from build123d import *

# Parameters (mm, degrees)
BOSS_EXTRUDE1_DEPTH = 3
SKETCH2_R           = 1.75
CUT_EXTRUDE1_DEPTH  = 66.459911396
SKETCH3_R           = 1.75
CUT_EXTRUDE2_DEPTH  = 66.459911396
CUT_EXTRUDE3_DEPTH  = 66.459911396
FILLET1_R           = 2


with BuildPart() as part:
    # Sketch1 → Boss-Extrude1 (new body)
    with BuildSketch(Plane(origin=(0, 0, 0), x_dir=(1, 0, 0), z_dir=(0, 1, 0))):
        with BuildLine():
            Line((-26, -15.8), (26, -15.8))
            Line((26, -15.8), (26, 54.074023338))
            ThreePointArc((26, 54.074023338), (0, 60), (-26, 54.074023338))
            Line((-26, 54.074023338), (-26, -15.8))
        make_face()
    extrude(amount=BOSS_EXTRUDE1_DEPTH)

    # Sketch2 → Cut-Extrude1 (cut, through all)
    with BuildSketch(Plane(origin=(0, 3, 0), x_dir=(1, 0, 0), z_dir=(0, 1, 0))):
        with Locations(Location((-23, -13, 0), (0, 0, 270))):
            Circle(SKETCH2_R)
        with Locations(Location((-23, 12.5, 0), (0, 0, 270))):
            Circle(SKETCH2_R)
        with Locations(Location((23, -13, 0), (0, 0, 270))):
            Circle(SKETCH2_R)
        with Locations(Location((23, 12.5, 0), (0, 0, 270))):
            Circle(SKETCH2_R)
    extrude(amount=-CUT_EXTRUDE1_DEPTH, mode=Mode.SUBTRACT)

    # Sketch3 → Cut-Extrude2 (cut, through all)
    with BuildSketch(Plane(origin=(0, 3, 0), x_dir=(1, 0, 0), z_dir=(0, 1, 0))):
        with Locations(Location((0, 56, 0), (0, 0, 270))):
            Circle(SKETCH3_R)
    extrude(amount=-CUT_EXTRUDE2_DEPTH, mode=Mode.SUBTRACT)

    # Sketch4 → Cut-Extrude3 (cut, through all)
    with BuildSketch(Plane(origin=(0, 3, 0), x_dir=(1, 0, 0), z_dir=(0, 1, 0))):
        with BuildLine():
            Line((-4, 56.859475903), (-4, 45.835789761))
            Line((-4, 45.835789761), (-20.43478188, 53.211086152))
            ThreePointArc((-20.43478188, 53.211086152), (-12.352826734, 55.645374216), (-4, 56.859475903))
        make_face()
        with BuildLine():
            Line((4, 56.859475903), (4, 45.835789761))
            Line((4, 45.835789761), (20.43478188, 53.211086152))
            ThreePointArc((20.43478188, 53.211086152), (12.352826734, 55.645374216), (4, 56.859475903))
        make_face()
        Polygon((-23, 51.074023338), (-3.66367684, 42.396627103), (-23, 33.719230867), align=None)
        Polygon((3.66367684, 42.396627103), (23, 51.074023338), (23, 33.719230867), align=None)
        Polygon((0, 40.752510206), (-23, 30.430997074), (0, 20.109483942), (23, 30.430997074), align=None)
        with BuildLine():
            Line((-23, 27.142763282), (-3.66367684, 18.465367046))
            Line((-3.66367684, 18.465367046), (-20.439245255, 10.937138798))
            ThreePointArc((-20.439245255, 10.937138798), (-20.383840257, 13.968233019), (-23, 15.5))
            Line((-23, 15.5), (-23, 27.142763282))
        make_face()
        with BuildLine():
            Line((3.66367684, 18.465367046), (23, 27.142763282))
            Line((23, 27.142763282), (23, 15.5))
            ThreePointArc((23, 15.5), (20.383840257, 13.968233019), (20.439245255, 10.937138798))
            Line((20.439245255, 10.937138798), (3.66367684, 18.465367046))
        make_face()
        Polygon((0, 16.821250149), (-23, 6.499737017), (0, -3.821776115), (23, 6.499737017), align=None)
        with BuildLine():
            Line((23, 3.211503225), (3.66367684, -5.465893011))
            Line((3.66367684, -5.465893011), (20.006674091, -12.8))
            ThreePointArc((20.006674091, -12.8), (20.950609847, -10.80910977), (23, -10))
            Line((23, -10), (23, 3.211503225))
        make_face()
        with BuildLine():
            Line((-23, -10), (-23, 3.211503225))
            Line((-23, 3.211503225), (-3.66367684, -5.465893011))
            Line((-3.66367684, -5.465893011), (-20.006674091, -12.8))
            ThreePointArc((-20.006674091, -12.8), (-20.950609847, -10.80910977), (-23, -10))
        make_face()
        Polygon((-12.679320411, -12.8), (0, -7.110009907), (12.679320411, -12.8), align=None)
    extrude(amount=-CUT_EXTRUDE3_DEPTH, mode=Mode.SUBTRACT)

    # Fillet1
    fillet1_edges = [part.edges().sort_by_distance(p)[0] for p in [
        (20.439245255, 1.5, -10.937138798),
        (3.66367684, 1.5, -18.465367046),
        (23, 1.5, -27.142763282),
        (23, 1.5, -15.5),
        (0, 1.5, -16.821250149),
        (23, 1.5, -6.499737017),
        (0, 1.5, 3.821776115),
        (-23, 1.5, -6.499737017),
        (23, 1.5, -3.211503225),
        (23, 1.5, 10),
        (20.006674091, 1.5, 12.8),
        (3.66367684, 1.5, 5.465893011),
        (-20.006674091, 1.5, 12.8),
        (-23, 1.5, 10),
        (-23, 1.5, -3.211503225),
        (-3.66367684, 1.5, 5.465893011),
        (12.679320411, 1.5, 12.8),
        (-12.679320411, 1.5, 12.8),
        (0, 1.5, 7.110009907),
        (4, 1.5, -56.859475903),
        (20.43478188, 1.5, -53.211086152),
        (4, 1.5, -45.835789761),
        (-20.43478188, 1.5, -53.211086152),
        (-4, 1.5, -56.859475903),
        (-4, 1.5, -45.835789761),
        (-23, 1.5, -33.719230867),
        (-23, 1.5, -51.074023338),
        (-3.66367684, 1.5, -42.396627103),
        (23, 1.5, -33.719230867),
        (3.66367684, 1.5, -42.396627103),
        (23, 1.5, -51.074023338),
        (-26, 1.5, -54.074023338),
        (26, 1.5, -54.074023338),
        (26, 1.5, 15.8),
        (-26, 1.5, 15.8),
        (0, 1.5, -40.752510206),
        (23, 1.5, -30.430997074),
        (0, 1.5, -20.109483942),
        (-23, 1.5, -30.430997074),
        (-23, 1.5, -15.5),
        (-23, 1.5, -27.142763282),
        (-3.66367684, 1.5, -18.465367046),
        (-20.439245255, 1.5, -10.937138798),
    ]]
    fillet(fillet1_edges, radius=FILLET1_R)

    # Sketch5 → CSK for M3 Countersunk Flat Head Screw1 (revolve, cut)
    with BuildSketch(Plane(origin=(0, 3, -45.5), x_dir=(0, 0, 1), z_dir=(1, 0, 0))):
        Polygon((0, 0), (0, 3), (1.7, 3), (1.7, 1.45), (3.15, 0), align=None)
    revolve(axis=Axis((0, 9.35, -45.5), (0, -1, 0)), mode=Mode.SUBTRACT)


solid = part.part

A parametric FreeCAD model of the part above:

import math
import FreeCAD as App
import Part
import Sketcher
from FreeCAD import Vector
Q = App.Units.Quantity


def edges_at(feature, points):
    """Names of the edges that pass closest to the given points."""
    edges = feature.Shape.Edges
    near = lambda p: min(range(len(edges)), key=lambda i: edges[i].distToShape(Part.Vertex(*p))[0])
    return sorted({f"Edge{near(p) + 1}" for p in points})

doc = App.newDocument("Part")
params = doc.addObject("Spreadsheet::Sheet", "Params")
for row, (alias, value) in enumerate([
    ("sketch1_radius", "60 mm"),
    ("sketch1_width", "52 mm"),
    ("pad1_length", "3 mm"),
    ("sketch2_diameter", "3.5 mm"),
    ("sketch3_diameter", "3.5 mm"),
    ("sketch4_radius", "57 mm"),
    ("sketch4_radius2", "3 mm"),
    ("fillet_radius", "2 mm"),
    ("sketch5_width", "3 mm"),
    ("sketch5_height", "1.7 mm"),
    ("sketch5_width2", "1.55 mm"),
    ("groove_angle", "360 deg"),
], start=1):
    params.set(f"A{row}", alias)
    params.set(f"B{row}", "=" + value)
    params.setAlias(f"B{row}", alias)

body = doc.addObject("PartDesign::Body", "Body")

# Sketch on XZ plane
sketch1 = body.newObject("Sketcher::SketchObject", "Sketch")
sketch1.AttachmentSupport = (doc.getObject("XZ_Plane"), [""])
sketch1.MapMode = "FlatFace"
sketch1.addGeometry([
    Part.LineSegment(Vector(-26, 16, 0), Vector(26, 16, 0)),
    Part.LineSegment(Vector(26, 16, 0), Vector(26, -54, 0)),
    Part.ArcOfCircle(Part.Circle(Vector(0, 0, 0), Vector(0, 0, 1), 60), math.radians(-116), math.radians(-64)),
    Part.LineSegment(Vector(-26, -54, 0), Vector(-26, 16, 0)),
], False)
sketch1.addConstraint([
    Sketcher.Constraint("Coincident", 0, 2, 1, 1),
    Sketcher.Constraint("Coincident", 1, 2, 2, 2),
    Sketcher.Constraint("Coincident", 2, 1, 3, 1),
    Sketcher.Constraint("Coincident", 3, 2, 0, 1),
    Sketcher.Constraint("Horizontal", 0),
    Sketcher.Constraint("Vertical", 1),
    Sketcher.Constraint("Vertical", 3),
    Sketcher.Constraint("Coincident", 2, 3, -1, 1),
    Sketcher.Constraint("Horizontal", 1, 2, 2, 1),
    Sketcher.Constraint("Radius", 2, 60.0),
    Sketcher.Constraint("DistanceX", 0, 1, 0, 2, 52.0),
    Sketcher.Constraint("DistanceY", -1, 1, 0, 2, 15.8),
])
sketch1.setExpression("Constraints[9]", "Params.sketch1_radius")
sketch1.setExpression("Constraints[10]", "Params.sketch1_width")
pad1 = body.newObject("PartDesign::Pad", "Pad")
pad1.Profile = sketch1
pad1.setExpression("Length", "Params.pad1_length")
pad1.Reversed = True

# Sketch on XZ plane
sketch2 = body.newObject("Sketcher::SketchObject", "Sketch001")
sketch2.AttachmentSupport = (doc.getObject("XZ_Plane"), [""])
sketch2.MapMode = "FlatFace"
sketch2.AttachmentOffset = App.Placement(Vector(0, 0, -3), App.Rotation())
sketch2.addGeometry([
    Part.Circle(Vector(-23, 13, 0), Vector(0, 0, 1), 1.8),
    Part.Circle(Vector(-23, -12.5, 0), Vector(0, 0, 1), 1.8),
    Part.Circle(Vector(23, 13, 0), Vector(0, 0, 1), 1.8),
    Part.Circle(Vector(23, -12.5, 0), Vector(0, 0, 1), 1.8),
], False)
sketch2.addConstraint([
    Sketcher.Constraint("Equal", 0, 1),
    Sketcher.Constraint("Equal", 1, 2),
    Sketcher.Constraint("Equal", 2, 3),
    Sketcher.Constraint("Symmetric", 0, 3, 2, 3, -2),
    Sketcher.Constraint("Symmetric", 1, 3, 3, 3, -2),
    Sketcher.Constraint("Vertical", 0, 3, 1, 3),
    Sketcher.Constraint("Diameter", 0, 3.5),
    Sketcher.Constraint("DistanceX", 0, 3, -1, 1, 23.0),
    Sketcher.Constraint("DistanceY", -1, 1, 0, 3, 13.0),
    Sketcher.Constraint("DistanceY", 1, 3, -1, 1, 12.5),
])
sketch2.setExpression("Constraints[6]", "Params.sketch2_diameter")
pocket1 = body.newObject("PartDesign::Pocket", "Pocket")
pocket1.Profile = sketch2
pocket1.Type = "ThroughAll"
pocket1.Reversed = True

# Sketch on XZ plane
sketch3 = body.newObject("Sketcher::SketchObject", "Sketch002")
sketch3.AttachmentSupport = (doc.getObject("XZ_Plane"), [""])
sketch3.MapMode = "FlatFace"
sketch3.AttachmentOffset = App.Placement(Vector(0, 0, -3), App.Rotation())
sketch3.addGeometry(Part.Circle(Vector(0, -56, 0), Vector(0, 0, 1), 1.8), False)
sketch3.addConstraint([
    Sketcher.Constraint("PointOnObject", 0, 3, -2),
    Sketcher.Constraint("Diameter", 0, 3.5),
    Sketcher.Constraint("DistanceY", 0, 3, -1, 1, 56.0),
])
sketch3.setExpression("Constraints[1]", "Params.sketch3_diameter")
pocket2 = body.newObject("PartDesign::Pocket", "Pocket001")
pocket2.Profile = sketch3
pocket2.Type = "ThroughAll"
pocket2.Reversed = True

# Sketch on XZ plane
sketch4 = body.newObject("Sketcher::SketchObject", "Sketch003")
sketch4.AttachmentSupport = (doc.getObject("XZ_Plane"), [""])
sketch4.MapMode = "FlatFace"
sketch4.AttachmentOffset = App.Placement(Vector(0, 0, -3), App.Rotation())
sketch4.addGeometry([
    Part.LineSegment(Vector(-4, -45.8, 0), Vector(-4, -56.9, 0)),  # 0
    Part.ArcOfCircle(Part.Circle(Vector(0, 0, 0), Vector(0, 0, 1), 57), math.radians(-111.01), math.radians(-94.02)),  # 1
    Part.LineSegment(Vector(-20.4, -53.2, 0), Vector(-4, -45.8, 0)),  # 2
    Part.LineSegment(Vector(4, -56.9, 0), Vector(4, -45.8, 0)),  # 3
    Part.LineSegment(Vector(4, -45.8, 0), Vector(20.4, -53.2, 0)),  # 4
    Part.ArcOfCircle(Part.Circle(Vector(0, 0, 0), Vector(0, 0, 1), 57), math.radians(-85.98), math.radians(-68.99)),  # 5
    Part.LineSegment(Vector(-3.7, -42.4, 0), Vector(-23, -51.1, 0)),  # 6
    Part.LineSegment(Vector(-23, -51.1, 0), Vector(-23, -33.7, 0)),  # 7
    Part.LineSegment(Vector(-23, -33.7, 0), Vector(-3.7, -42.4, 0)),  # 8
    Part.LineSegment(Vector(23, -51.1, 0), Vector(3.7, -42.4, 0)),  # 9
    Part.LineSegment(Vector(3.7, -42.4, 0), Vector(23, -33.7, 0)),  # 10
    Part.LineSegment(Vector(23, -33.7, 0), Vector(23, -51.1, 0)),  # 11
    Part.LineSegment(Vector(0, -40.8, 0), Vector(-23, -30.4, 0)),  # 12
    Part.LineSegment(Vector(-23, -30.4, 0), Vector(0, -20.1, 0)),  # 13
    Part.LineSegment(Vector(0, -20.1, 0), Vector(23, -30.4, 0)),  # 14
    Part.LineSegment(Vector(23, -30.4, 0), Vector(0, -40.8, 0)),  # 15
    Part.LineSegment(Vector(-3.7, -18.5, 0), Vector(-23, -27.1, 0)),  # 16
    Part.LineSegment(Vector(-23, -27.1, 0), Vector(-23, -15.5, 0)),  # 17
    Part.ArcOfCircle(Part.Circle(Vector(-23, -12.5, 0), Vector(0, 0, 1), 3), math.radians(-90), math.radians(31)),  # 18
    Part.LineSegment(Vector(-20.4, -10.9, 0), Vector(-3.7, -18.5, 0)),  # 19
    Part.LineSegment(Vector(23, -27.1, 0), Vector(3.7, -18.5, 0)),  # 20
    Part.LineSegment(Vector(3.7, -18.5, 0), Vector(20.4, -10.9, 0)),  # 21
    Part.ArcOfCircle(Part.Circle(Vector(23, -12.5, 0), Vector(0, 0, 1), 3), math.radians(149), math.radians(270)),  # 22
    Part.LineSegment(Vector(23, -15.5, 0), Vector(23, -27.1, 0)),  # 23
    Part.LineSegment(Vector(0, -16.8, 0), Vector(-23, -6.5, 0)),  # 24
    Part.LineSegment(Vector(-23, -6.5, 0), Vector(0, 3.8, 0)),  # 25
    Part.LineSegment(Vector(0, 3.8, 0), Vector(23, -6.5, 0)),  # 26
    Part.LineSegment(Vector(23, -6.5, 0), Vector(0, -16.8, 0)),  # 27
    Part.LineSegment(Vector(23, -3.2, 0), Vector(3.7, 5.5, 0)),  # 28
    Part.LineSegment(Vector(3.7, 5.5, 0), Vector(20, 12.8, 0)),  # 29
    Part.ArcOfCircle(Part.Circle(Vector(23, 13, 0), Vector(0, 0, 1), 3), math.radians(-176), math.radians(-90)),  # 30
    Part.LineSegment(Vector(23, 10, 0), Vector(23, -3.2, 0)),  # 31
    Part.LineSegment(Vector(-23, -3.2, 0), Vector(-23, 10, 0)),  # 32
    Part.ArcOfCircle(Part.Circle(Vector(-23, 13, 0), Vector(0, 0, 1), 3), math.radians(-90), math.radians(-4)),  # 33
    Part.LineSegment(Vector(-20, 12.8, 0), Vector(-3.7, 5.5, 0)),  # 34
    Part.LineSegment(Vector(-3.7, 5.5, 0), Vector(-23, -3.2, 0)),  # 35
    Part.LineSegment(Vector(0, 7.1, 0), Vector(-12.7, 12.8, 0)),  # 36
    Part.LineSegment(Vector(-12.7, 12.8, 0), Vector(12.7, 12.8, 0)),  # 37
    Part.LineSegment(Vector(12.7, 12.8, 0), Vector(0, 7.1, 0)),  # 38
], False)
sketch4.addConstraint([
    Sketcher.Constraint("Coincident", 0, 2, 1, 2),
    Sketcher.Constraint("Coincident", 1, 1, 2, 1),
    Sketcher.Constraint("Coincident", 2, 2, 0, 1),
    Sketcher.Constraint("Coincident", 3, 2, 4, 1),
    Sketcher.Constraint("Coincident", 4, 2, 5, 2),
    Sketcher.Constraint("Coincident", 5, 1, 3, 1),
    Sketcher.Constraint("Coincident", 6, 2, 7, 1),
    Sketcher.Constraint("Coincident", 7, 2, 8, 1),
    Sketcher.Constraint("Coincident", 8, 2, 6, 1),
    Sketcher.Constraint("Coincident", 9, 2, 10, 1),
    Sketcher.Constraint("Coincident", 10, 2, 11, 1),
    Sketcher.Constraint("Coincident", 11, 2, 9, 1),
    Sketcher.Constraint("Coincident", 12, 2, 13, 1),
    Sketcher.Constraint("Coincident", 13, 2, 14, 1),
    Sketcher.Constraint("Coincident", 14, 2, 15, 1),
    Sketcher.Constraint("Coincident", 15, 2, 12, 1),
    Sketcher.Constraint("Coincident", 16, 2, 17, 1),
    Sketcher.Constraint("Coincident", 17, 2, 18, 1),
    Sketcher.Constraint("Coincident", 18, 2, 19, 1),
    Sketcher.Constraint("Coincident", 19, 2, 16, 1),
    Sketcher.Constraint("Coincident", 20, 2, 21, 1),
    Sketcher.Constraint("Coincident", 21, 2, 22, 1),
    Sketcher.Constraint("Coincident", 22, 2, 23, 1),
    Sketcher.Constraint("Coincident", 23, 2, 20, 1),
    Sketcher.Constraint("Coincident", 24, 2, 25, 1),
    Sketcher.Constraint("Coincident", 25, 2, 26, 1),
    Sketcher.Constraint("Coincident", 26, 2, 27, 1),
    Sketcher.Constraint("Coincident", 27, 2, 24, 1),
    Sketcher.Constraint("Coincident", 28, 2, 29, 1),
    Sketcher.Constraint("Coincident", 29, 2, 30, 1),
    Sketcher.Constraint("Coincident", 30, 2, 31, 1),
    Sketcher.Constraint("Coincident", 31, 2, 28, 1),
    Sketcher.Constraint("Coincident", 32, 2, 33, 1),
    Sketcher.Constraint("Coincident", 33, 2, 34, 1),
    Sketcher.Constraint("Coincident", 34, 2, 35, 1),
    Sketcher.Constraint("Coincident", 35, 2, 32, 1),
    Sketcher.Constraint("Coincident", 36, 2, 37, 1),
    Sketcher.Constraint("Coincident", 37, 2, 38, 1),
    Sketcher.Constraint("Coincident", 38, 2, 36, 1),
    Sketcher.Constraint("Vertical", 0),
    Sketcher.Constraint("Vertical", 3),
    Sketcher.Constraint("Vertical", 7),
    Sketcher.Constraint("Vertical", 11),
    Sketcher.Constraint("Vertical", 17),
    Sketcher.Constraint("Vertical", 23),
    Sketcher.Constraint("Vertical", 31),
    Sketcher.Constraint("Vertical", 32),
    Sketcher.Constraint("Horizontal", 37),
    Sketcher.Constraint("Coincident", 1, 3, -1, 1),
    Sketcher.Constraint("Coincident", 5, 3, -1, 1),
    Sketcher.Constraint("Equal", 1, 5),
    Sketcher.Constraint("Equal", 18, 22),
    Sketcher.Constraint("Equal", 22, 30),
    Sketcher.Constraint("Equal", 30, 33),
    Sketcher.Constraint("Symmetric", 18, 3, 22, 3, -2),
    Sketcher.Constraint("Symmetric", 30, 3, 33, 3, -2),
    Sketcher.Constraint("Symmetric", 2, 2, 3, 2, -2),
    Sketcher.Constraint("Symmetric", 8, 2, 9, 2, -2),
    Sketcher.Constraint("Symmetric", 7, 2, 10, 2, -2),
    Sketcher.Constraint("Symmetric", 12, 2, 14, 2, -2),
    Sketcher.Constraint("Symmetric", 19, 2, 20, 2, -2),
    Sketcher.Constraint("Symmetric", 16, 2, 23, 2, -2),
    Sketcher.Constraint("Symmetric", 24, 2, 26, 2, -2),
    Sketcher.Constraint("Symmetric", 28, 2, 34, 2, -2),
    Sketcher.Constraint("Symmetric", 31, 2, 35, 2, -2),
    Sketcher.Constraint("PointOnObject", 13, 2, -2),
    Sketcher.Constraint("PointOnObject", 15, 2, -2),
    Sketcher.Constraint("PointOnObject", 25, 2, -2),
    Sketcher.Constraint("PointOnObject", 27, 2, -2),
    Sketcher.Constraint("PointOnObject", 38, 2, -2),
    Sketcher.Constraint("Parallel", 2, 6),
    Sketcher.Constraint("Parallel", 4, 8),
    Sketcher.Constraint("Parallel", 8, 9),
    Sketcher.Constraint("Parallel", 6, 10),
    Sketcher.Constraint("Parallel", 9, 12),
    Sketcher.Constraint("Parallel", 10, 13),
    Sketcher.Constraint("Parallel", 15, 16),
    Sketcher.Constraint("Parallel", 14, 19),
    Sketcher.Constraint("Parallel", 16, 21),
    Sketcher.Constraint("Parallel", 20, 24),
    Sketcher.Constraint("Parallel", 21, 25),
    Sketcher.Constraint("Parallel", 26, 28),
    Sketcher.Constraint("Parallel", 27, 29),
    Sketcher.Constraint("Parallel", 28, 34),
    Sketcher.Constraint("Parallel", 34, 36),
    Sketcher.Constraint("Parallel", 35, 38),
    Sketcher.Constraint("Horizontal", 33, 2, 36, 2),
    Sketcher.Constraint("Vertical", 22, 3, 30, 3),
    Sketcher.Constraint("Vertical", 33, 3, 6, 2),
    Sketcher.Constraint("Vertical", 7, 2, 12, 2),
    Sketcher.Constraint("Vertical", 12, 2, 16, 2),
    Sketcher.Constraint("Vertical", 8, 2, 19, 2),
    Sketcher.Constraint("Vertical", 17, 2, 24, 2),
    Sketcher.Constraint("Vertical", 20, 2, 28, 2),
    Sketcher.Constraint("Vertical", 26, 2, 30, 2),
    Sketcher.Constraint("Radius", 1, 57.0),
    Sketcher.Constraint("Radius", 18, 3.0),
    Sketcher.Constraint("DistanceX", 18, 3, -1, 1, 23.0),
    Sketcher.Constraint("DistanceY", -1, 1, 30, 3, 13.0),
    Sketcher.Constraint("DistanceX", 0, 2, -1, 1, 4.0),
    Sketcher.Constraint("DistanceY", 18, 3, -1, 1, 12.5),
    Sketcher.Constraint("DistanceY", -1, 1, 29, 2, 12.8),
    Sketcher.Constraint("Distance", 2, 18.013802),
    Sketcher.Constraint("Distance", 29, 17.913199),
    Sketcher.Constraint("DistanceX", 37, 1, 37, 2, 25.358641),
    Sketcher.Constraint("DistanceY", 18, 2, 24, 2, 4.437402),
    Sketcher.Constraint("Distance", 19, 18.38733),
    Sketcher.Constraint("DistanceY", 0, 2, 0, 1, 11.023686),
    Sketcher.Constraint("DistanceY", 7, 2, -1, 1, 33.719231),
    Sketcher.Constraint("DistanceY", 15, 2, -1, 1, 40.75251),
])
sketch4.setExpression("Constraints[95]", "Params.sketch4_radius")
sketch4.setExpression("Constraints[96]", "Params.sketch4_radius2")
pocket3 = body.newObject("PartDesign::Pocket", "Pocket002")
pocket3.Profile = sketch4
pocket3.Type = "ThroughAll"
pocket3.Reversed = True
doc.recompute()

fillet = body.newObject("PartDesign::Fillet", "Fillet")
fillet.Base = (pocket3, edges_at(pocket3, [
    (20.439, 1.5, -10.937),
    (3.664, 1.5, -18.465),
    (23, 1.5, -27.143),
    (23, 1.5, -15.5),
    (0, 1.5, -16.821),
    (23, 1.5, -6.5),
    (0, 1.5, 3.822),
    (-23, 1.5, -6.5),
    (23, 1.5, -3.212),
    (23, 1.5, 10),
    (20.007, 1.5, 12.8),
    (3.664, 1.5, 5.466),
    (-20.007, 1.5, 12.8),
    (-23, 1.5, 10),
    (-23, 1.5, -3.212),
    (-3.664, 1.5, 5.466),
    (12.679, 1.5, 12.8),
    (-12.679, 1.5, 12.8),
    (0, 1.5, 7.11),
    (4, 1.5, -56.859),
    (20.435, 1.5, -53.211),
    (4, 1.5, -45.836),
    (-20.435, 1.5, -53.211),
    (-4, 1.5, -56.859),
    (-4, 1.5, -45.836),
    (-23, 1.5, -33.719),
    (-23, 1.5, -51.074),
    (-3.664, 1.5, -42.397),
    (23, 1.5, -33.719),
    (3.664, 1.5, -42.397),
    (23, 1.5, -51.074),
    (-26, 1.5, -54.074),
    (26, 1.5, -54.074),
    (26, 1.5, 15.8),
    (-26, 1.5, 15.8),
    (0, 1.5, -40.753),
    (23, 1.5, -30.431),
    (0, 1.5, -20.109),
    (-23, 1.5, -30.431),
    (-23, 1.5, -15.5),
    (-23, 1.5, -27.143),
    (-3.664, 1.5, -18.465),
    (-20.439, 1.5, -10.937),
]))
fillet.setExpression("Radius", "Params.fillet_radius")

# Sketch on YZ plane
sketch5 = body.newObject("Sketcher::SketchObject", "Sketch004")
sketch5.AttachmentSupport = (doc.getObject("YZ_Plane"), [""])
sketch5.MapMode = "FlatFace"
sketch5.addGeometry([
    Part.LineSegment(Vector(0, -45.5, 0), Vector(3, -45.5, 0)),  # 0
    Part.LineSegment(Vector(3, -45.5, 0), Vector(3, -42.4, 0)),  # 1
    Part.LineSegment(Vector(3, -42.4, 0), Vector(1.6, -43.8, 0)),  # 2
    Part.LineSegment(Vector(1.6, -43.8, 0), Vector(0, -43.8, 0)),  # 3
    Part.LineSegment(Vector(0, -43.8, 0), Vector(0, -45.5, 0)),  # 4
], False)
sketch5.addGeometry(Part.LineSegment(Vector(3, -45.5, 0), Vector(0, -45.5, 0)), True)  # axis
sketch5.addConstraint([
    Sketcher.Constraint("Coincident", 0, 2, 1, 1),
    Sketcher.Constraint("Coincident", 1, 2, 2, 1),
    Sketcher.Constraint("Coincident", 2, 2, 3, 1),
    Sketcher.Constraint("Coincident", 3, 2, 4, 1),
    Sketcher.Constraint("Coincident", 4, 2, 0, 1),
    Sketcher.Constraint("Horizontal", 0),
    Sketcher.Constraint("Vertical", 1),
    Sketcher.Constraint("Horizontal", 3),
    Sketcher.Constraint("Vertical", 4),
    Sketcher.Constraint("Horizontal", 5),
    Sketcher.Constraint("Coincident", 5, 1, 0, 2),
    Sketcher.Constraint("PointOnObject", 3, 2, -2),
    Sketcher.Constraint("PointOnObject", 5, 2, -2),
    Sketcher.Constraint("DistanceX", 0, 1, 0, 2, 3.0),
    Sketcher.Constraint("Angle", 2, Q("-135 deg")),
    Sketcher.Constraint("DistanceY", 4, 2, 4, 1, 1.7),
    Sketcher.Constraint("DistanceX", 3, 2, 3, 1, 1.55),
    Sketcher.Constraint("DistanceY", 0, 2, -1, 1, 45.5),
])
sketch5.setExpression("Constraints[13]", "Params.sketch5_width")
sketch5.setExpression("Constraints[15]", "Params.sketch5_height")
sketch5.setExpression("Constraints[16]", "Params.sketch5_width2")
groove = body.newObject("PartDesign::Groove", "Groove")
groove.Profile = sketch5
groove.ReferenceAxis = (sketch5, ["Axis0"])
groove.setExpression("Angle", "Params.groove_angle")

doc.recompute()
